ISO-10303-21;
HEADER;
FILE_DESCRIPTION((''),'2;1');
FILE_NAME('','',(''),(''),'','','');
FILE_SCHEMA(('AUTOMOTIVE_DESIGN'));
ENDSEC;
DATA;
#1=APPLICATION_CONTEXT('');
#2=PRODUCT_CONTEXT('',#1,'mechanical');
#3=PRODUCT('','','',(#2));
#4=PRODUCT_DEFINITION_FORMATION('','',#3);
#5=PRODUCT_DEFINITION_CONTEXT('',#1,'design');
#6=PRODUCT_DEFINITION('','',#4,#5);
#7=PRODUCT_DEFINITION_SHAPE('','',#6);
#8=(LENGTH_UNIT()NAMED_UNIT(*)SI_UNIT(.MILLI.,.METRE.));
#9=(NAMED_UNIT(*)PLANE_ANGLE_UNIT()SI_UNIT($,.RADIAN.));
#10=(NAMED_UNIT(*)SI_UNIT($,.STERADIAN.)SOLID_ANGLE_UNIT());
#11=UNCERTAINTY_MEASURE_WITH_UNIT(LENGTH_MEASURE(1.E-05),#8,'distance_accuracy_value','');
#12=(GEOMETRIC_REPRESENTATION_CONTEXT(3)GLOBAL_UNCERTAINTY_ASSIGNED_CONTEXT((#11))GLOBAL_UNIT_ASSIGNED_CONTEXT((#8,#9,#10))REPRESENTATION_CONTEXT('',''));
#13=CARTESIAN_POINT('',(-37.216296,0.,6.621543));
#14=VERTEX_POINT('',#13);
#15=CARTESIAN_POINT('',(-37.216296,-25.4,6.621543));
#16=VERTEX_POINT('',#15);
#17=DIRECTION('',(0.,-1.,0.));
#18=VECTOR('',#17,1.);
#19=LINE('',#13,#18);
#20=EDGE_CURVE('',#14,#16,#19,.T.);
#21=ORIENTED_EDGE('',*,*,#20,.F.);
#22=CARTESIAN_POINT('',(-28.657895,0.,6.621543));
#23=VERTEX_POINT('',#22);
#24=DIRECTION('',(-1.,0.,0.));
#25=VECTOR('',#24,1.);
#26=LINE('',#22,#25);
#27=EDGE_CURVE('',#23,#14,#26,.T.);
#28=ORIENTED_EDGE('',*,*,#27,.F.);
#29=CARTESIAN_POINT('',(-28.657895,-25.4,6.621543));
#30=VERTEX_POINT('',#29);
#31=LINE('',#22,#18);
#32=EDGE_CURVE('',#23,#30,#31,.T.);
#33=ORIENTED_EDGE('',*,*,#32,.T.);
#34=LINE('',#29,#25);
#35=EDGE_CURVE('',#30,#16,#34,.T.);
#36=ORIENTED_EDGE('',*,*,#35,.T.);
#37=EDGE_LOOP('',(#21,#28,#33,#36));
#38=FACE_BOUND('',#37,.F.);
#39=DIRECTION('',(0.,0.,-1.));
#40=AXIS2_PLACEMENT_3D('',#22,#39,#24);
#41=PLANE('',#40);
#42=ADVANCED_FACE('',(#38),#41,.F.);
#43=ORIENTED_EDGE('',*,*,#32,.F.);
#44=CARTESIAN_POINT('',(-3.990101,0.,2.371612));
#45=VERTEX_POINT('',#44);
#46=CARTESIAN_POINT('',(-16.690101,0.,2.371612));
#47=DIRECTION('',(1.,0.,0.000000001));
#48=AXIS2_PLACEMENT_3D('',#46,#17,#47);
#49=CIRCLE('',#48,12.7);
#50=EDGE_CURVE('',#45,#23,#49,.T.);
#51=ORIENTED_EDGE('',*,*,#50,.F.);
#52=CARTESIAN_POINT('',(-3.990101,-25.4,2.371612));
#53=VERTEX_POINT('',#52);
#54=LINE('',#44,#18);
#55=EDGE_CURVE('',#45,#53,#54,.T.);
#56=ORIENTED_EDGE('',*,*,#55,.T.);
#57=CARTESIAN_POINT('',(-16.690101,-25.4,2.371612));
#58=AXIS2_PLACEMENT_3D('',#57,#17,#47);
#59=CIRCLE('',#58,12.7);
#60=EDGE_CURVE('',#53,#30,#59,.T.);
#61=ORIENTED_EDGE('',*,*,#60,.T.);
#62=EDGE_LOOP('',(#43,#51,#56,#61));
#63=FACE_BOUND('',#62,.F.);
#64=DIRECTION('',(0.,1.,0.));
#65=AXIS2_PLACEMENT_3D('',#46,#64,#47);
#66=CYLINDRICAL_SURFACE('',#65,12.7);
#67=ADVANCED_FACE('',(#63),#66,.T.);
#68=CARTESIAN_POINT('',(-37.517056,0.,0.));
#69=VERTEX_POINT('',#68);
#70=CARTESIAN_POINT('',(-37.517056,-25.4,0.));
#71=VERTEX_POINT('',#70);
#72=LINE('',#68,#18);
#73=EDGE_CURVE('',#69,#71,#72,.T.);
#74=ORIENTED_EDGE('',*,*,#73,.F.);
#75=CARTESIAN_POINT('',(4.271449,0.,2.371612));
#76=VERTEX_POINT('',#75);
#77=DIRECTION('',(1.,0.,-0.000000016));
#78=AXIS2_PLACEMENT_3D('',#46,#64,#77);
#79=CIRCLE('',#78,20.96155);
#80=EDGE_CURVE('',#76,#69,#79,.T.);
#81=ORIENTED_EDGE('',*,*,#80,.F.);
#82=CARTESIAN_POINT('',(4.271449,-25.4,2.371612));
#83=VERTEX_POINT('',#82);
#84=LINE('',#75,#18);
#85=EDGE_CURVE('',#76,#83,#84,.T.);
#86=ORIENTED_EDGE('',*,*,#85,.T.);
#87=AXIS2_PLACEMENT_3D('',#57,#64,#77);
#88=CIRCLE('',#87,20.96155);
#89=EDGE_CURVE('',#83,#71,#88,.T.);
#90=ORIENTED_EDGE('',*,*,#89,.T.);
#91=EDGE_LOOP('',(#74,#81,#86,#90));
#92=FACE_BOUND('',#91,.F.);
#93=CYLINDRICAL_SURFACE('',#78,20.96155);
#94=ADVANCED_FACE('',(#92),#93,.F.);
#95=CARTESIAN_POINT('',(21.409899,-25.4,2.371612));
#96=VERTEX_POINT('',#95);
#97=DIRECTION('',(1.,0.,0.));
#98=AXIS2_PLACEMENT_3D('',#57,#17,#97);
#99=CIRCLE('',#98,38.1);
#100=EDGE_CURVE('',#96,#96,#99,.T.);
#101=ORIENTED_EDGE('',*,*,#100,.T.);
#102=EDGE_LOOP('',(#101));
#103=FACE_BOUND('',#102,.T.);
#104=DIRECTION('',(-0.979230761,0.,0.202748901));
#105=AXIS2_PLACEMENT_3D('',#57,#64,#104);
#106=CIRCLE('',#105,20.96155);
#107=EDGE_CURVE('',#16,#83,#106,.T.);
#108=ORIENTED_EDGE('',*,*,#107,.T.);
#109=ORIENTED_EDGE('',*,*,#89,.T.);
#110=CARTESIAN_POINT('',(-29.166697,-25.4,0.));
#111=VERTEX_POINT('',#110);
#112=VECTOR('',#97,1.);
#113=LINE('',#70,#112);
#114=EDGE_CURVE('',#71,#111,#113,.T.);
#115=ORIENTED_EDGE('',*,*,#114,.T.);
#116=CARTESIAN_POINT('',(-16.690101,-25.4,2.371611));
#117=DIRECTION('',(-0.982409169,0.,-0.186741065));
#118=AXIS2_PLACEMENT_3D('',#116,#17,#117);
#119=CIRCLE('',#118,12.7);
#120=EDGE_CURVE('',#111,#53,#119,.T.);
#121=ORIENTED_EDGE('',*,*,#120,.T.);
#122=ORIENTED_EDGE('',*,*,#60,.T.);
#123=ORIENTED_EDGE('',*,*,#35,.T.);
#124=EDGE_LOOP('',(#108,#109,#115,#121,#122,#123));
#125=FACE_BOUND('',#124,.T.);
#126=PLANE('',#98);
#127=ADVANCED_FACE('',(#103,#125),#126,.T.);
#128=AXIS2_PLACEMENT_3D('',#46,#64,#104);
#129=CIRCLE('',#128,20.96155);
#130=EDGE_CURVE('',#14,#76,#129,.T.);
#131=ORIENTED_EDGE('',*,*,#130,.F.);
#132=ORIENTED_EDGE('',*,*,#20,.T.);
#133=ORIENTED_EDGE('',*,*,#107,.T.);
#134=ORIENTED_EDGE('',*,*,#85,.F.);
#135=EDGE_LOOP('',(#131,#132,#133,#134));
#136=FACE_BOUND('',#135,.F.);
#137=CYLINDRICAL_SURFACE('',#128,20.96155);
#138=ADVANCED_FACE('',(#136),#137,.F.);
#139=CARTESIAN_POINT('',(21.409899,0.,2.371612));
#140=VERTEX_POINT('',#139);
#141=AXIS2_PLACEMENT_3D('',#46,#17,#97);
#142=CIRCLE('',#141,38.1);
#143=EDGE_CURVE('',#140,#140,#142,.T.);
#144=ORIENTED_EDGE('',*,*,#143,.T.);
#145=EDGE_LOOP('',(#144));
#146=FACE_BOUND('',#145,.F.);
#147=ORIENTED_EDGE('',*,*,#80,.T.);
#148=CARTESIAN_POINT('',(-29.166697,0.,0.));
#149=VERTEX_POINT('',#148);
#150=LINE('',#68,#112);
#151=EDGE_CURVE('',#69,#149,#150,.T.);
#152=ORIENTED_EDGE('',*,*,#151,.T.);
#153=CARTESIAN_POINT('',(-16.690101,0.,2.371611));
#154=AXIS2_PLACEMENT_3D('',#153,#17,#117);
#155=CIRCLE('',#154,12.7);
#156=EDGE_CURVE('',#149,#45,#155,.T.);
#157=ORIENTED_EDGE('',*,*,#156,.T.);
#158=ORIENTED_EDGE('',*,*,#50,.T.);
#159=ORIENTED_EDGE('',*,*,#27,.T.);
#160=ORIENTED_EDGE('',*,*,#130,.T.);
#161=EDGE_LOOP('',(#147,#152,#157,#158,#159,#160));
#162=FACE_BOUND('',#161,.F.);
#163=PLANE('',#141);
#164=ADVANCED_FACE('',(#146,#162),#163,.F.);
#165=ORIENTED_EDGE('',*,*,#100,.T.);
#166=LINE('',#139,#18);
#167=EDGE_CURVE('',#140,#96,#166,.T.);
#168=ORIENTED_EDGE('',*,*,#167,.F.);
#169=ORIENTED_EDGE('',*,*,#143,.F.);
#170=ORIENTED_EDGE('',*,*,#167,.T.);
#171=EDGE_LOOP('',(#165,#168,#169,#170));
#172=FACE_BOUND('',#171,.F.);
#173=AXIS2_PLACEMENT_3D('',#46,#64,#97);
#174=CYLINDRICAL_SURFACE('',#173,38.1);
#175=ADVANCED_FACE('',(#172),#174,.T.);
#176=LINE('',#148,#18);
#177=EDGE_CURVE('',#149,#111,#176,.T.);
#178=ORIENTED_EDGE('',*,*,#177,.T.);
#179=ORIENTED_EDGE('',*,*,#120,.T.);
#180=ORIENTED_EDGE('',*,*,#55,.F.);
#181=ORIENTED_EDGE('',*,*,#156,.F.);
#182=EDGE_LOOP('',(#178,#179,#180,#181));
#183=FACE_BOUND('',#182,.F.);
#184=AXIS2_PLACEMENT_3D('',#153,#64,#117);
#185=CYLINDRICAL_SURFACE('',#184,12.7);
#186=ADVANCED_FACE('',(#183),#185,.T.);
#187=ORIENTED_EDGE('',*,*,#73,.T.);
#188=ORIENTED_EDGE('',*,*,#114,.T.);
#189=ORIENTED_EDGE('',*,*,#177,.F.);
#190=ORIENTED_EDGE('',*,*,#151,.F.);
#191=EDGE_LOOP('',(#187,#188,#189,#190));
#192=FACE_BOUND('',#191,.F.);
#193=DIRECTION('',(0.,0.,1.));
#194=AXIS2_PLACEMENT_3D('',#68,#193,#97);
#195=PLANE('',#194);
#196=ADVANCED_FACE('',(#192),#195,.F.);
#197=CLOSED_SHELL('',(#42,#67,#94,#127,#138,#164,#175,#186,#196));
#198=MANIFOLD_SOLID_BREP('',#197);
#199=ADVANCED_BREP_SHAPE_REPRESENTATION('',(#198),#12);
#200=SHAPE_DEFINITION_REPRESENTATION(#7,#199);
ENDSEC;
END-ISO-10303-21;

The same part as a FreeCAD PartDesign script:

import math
import FreeCAD as App
import Part
import Sketcher
from FreeCAD import Vector
Q = App.Units.Quantity

doc = App.newDocument("Part")
body = doc.addObject("PartDesign::Body", "Body")

# Sketch on XZ plane
sketch1 = body.newObject("Sketcher::SketchObject", "Sketch")
sketch1.AttachmentSupport = (doc.getObject("XZ_Plane"), [""])
sketch1.MapMode = "FlatFace"
sketch1.addGeometry([
    Part.Circle(Vector(-17, 2, 0), Vector(0, 0, 1), 38),  # 0
    Part.ArcOfCircle(Part.Circle(Vector(-17, 2, 0), Vector(0, 0, 1), 21), math.radians(-174), math.radians(0)),  # 1
    Part.LineSegment(Vector(-38, 0, 0), Vector(-29, 0, 0)),  # 2
    Part.ArcOfCircle(Part.Circle(Vector(-17, 2, 0), Vector(0, 0, 1), 13), math.radians(-169), math.radians(0)),  # 3
    Part.ArcOfCircle(Part.Circle(Vector(-17, 2, 0), Vector(0, 0, 1), 13), math.radians(0), math.radians(160)),  # 4
    Part.LineSegment(Vector(-29, 7, 0), Vector(-37, 7, 0)),  # 5
    Part.ArcOfCircle(Part.Circle(Vector(-17, 2, 0), Vector(0, 0, 1), 21), math.radians(0), math.radians(168)),  # 6
], False)
sketch1.addConstraint([
    Sketcher.Constraint("Coincident", 1, 1, 2, 1),
    Sketcher.Constraint("Coincident", 2, 2, 3, 1),
    Sketcher.Constraint("Tangent", 3, 2, 4, 1),
    Sketcher.Constraint("Coincident", 4, 2, 5, 1),
    Sketcher.Constraint("Coincident", 5, 2, 6, 2),
    Sketcher.Constraint("Tangent", 6, 1, 1, 2),
    Sketcher.Constraint("Horizontal", 2),
    Sketcher.Constraint("Horizontal", 5),
    Sketcher.Constraint("Coincident", 1, 3, 0, 3),
    Sketcher.Constraint("Coincident", 3, 3, 0, 3),
    Sketcher.Constraint("Equal", 3, 4),
    Sketcher.Constraint("Equal", 1, 6),
    Sketcher.Constraint("PointOnObject", 1, 1, -1),
    Sketcher.Constraint("Horizontal", 6, 3, 3, 2),
    Sketcher.Constraint("Horizontal", 3, 2, 6, 1),
    Sketcher.Constraint("Diameter", 0, Q("3 in")),
    Sketcher.Constraint("Radius", 3, Q("0.5 in")),
    Sketcher.Constraint("Radius", 1, 20.96155),
    Sketcher.Constraint("DistanceX", 5, 2, 5, 1, 8.558401),
    Sketcher.Constraint("DistanceX", 2, 1, 2, 2, 8.350359),
    Sketcher.Constraint("DistanceX", 0, 3, -1, 1, 16.690101),
])
pad1 = body.newObject("PartDesign::Pad", "Pad")
pad1.Profile = sketch1
pad1.Length = Q("1 in")

doc.recompute()
